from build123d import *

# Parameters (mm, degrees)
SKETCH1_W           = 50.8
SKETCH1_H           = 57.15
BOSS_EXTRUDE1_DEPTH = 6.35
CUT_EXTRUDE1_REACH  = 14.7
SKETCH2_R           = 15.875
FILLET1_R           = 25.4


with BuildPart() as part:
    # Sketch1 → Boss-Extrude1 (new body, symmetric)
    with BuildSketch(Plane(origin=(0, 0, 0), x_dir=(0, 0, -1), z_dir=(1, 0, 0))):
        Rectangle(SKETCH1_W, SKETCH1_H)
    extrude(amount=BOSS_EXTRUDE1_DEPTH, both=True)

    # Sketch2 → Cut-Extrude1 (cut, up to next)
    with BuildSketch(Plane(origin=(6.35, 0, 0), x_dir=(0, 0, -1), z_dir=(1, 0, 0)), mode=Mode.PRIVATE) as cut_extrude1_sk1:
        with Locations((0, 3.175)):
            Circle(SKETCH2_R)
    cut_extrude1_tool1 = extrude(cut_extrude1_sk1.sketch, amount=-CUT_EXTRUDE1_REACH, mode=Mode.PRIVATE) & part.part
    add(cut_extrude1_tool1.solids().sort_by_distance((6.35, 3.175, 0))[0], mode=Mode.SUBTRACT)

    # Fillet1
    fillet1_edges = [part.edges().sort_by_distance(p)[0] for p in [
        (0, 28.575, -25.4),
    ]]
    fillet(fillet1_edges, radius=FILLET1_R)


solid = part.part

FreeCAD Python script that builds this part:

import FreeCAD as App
import Part
import Sketcher

V = App.Vector
Q = App.Units.Quantity


def edges_at(feature, points):
    """Names of the edges that pass closest to the given points."""
    edges = feature.Shape.Edges
    near = lambda p: min(range(len(edges)), key=lambda i: edges[i].distToShape(Part.Vertex(*p))[0])
    return sorted({f"Edge{near(p) + 1}" for p in points})

doc = App.newDocument("Part")
params = doc.addObject("Spreadsheet::Sheet", "Params")
for row, (alias, value) in enumerate([
    ("sketch1_height", "2 in"),
    ("sketch1_width", "2.25 in"),
    ("pad1_length", "0.5 in"),
    ("sketch2_diameter", "1.25 in"),
    ("fillet_radius", "1 in"),
], start=1):
    params.set(f"A{row}", alias)
    params.set(f"B{row}", "=" + value)
    params.setAlias(f"B{row}", alias)

body = doc.addObject("PartDesign::Body", "Body")

# Sketch on YZ plane
sketch1 = doc.addObject("Sketcher::SketchObject", "Sketch")
body.addObject(sketch1)
sketch1.AttachmentSupport = (doc.YZ_Plane, [""])
sketch1.MapMode = "FlatFace"
sketch1.addGeometry([
    Part.LineSegment(V(29, 25, 0), V(-29, 25, 0)),
    Part.LineSegment(V(-29, 25, 0), V(-29, -25, 0)),
    Part.LineSegment(V(-29, -25, 0), V(29, -25, 0)),
    Part.LineSegment(V(29, -25, 0), V(29, 25, 0)),
], False)
sketch1.addConstraint([
    Sketcher.Constraint("Coincident", 0, 2, 1, 1),
    Sketcher.Constraint("Coincident", 1, 2, 2, 1),
    Sketcher.Constraint("Coincident", 2, 2, 3, 1),
    Sketcher.Constraint("Coincident", 3, 2, 0, 1),
    Sketcher.Constraint("Horizontal", 0),
    Sketcher.Constraint("Vertical", 1),
    Sketcher.Constraint("Horizontal", 2),
    Sketcher.Constraint("Vertical", 3),
    Sketcher.Constraint("Symmetric", 0, 2, 2, 2, -1, 1),
    Sketcher.Constraint("DistanceY", 1, 2, 1, 1, Q("2 in")),
    Sketcher.Constraint("DistanceX", 0, 2, 0, 1, Q("2.25 in")),
])
sketch1.setExpression("Constraints[9]", "Params.sketch1_height")
sketch1.setExpression("Constraints[10]", "Params.sketch1_width")
pad1 = doc.addObject("PartDesign::Pad", "Pad")
body.addObject(pad1)
pad1.Profile = sketch1
pad1.setExpression("Length", "Params.pad1_length")
pad1.Midplane = True

# Sketch on YZ plane
sketch2 = doc.addObject("Sketcher::SketchObject", "Sketch001")
body.addObject(sketch2)
sketch2.AttachmentSupport = (doc.YZ_Plane, [""])
sketch2.MapMode = "FlatFace"
sketch2.AttachmentOffset = App.Placement(V(0, 0, 0.25 * 25.4), App.Rotation())
sketch2.addGeometry(Part.Circle(V(3, 0, 0), V(0, 0, 1), 16), False)
sketch2.addConstraint([
    Sketcher.Constraint("PointOnObject", 0, 3, -1),
    Sketcher.Constraint("Diameter", 0, Q("1.25 in")),
    Sketcher.Constraint("DistanceX", -1, 1, 0, 3, Q("0.125 in")),
])
sketch2.setExpression("Constraints[1]", "Params.sketch2_diameter")
pocket1 = doc.addObject("PartDesign::Pocket", "Pocket")
body.addObject(pocket1)
pocket1.Profile = sketch2
pocket1.Type = "UpToFirst"
doc.recompute()

fillet = doc.addObject("PartDesign::Fillet", "Fillet")
body.addObject(fillet)
fillet.Base = (pocket1, edges_at(pocket1, [(0, 28.575, -25.4)]))
fillet.setExpression("Radius", "Params.fillet_radius")

doc.recompute()
